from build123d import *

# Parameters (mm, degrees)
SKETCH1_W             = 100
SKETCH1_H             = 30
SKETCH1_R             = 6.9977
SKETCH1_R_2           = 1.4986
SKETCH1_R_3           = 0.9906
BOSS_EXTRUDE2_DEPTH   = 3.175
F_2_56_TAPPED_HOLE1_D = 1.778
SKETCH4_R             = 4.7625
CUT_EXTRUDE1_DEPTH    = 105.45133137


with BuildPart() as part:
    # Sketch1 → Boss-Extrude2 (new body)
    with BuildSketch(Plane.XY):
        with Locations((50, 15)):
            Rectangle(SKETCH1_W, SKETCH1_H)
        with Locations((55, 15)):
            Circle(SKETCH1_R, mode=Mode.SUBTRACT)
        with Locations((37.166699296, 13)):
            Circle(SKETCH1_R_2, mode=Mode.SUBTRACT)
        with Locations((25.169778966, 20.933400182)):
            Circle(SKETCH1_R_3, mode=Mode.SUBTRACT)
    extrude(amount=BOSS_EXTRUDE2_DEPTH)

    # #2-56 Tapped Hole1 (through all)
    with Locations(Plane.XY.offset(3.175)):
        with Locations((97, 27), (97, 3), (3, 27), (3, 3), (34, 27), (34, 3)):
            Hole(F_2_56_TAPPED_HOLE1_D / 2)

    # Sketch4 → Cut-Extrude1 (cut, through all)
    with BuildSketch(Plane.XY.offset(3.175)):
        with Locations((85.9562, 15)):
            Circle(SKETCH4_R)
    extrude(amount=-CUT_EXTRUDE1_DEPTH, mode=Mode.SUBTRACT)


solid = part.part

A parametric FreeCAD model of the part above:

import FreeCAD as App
import Part
import Sketcher
Q = App.Units.Quantity

doc = App.newDocument("Part")
body = doc.addObject("PartDesign::Body", "Body")

# Sketch on XY plane
sketch1 = body.newObject("Sketcher::SketchObject", "Sketch")
sketch1.AttachmentSupport = (doc.getObject("XY_Plane"), [""])
sketch1.MapMode = "FlatFace"
sketch1.addGeometry([
    Part.LineSegment(App.Vector(0, 30, 0), App.Vector(0, 0, 0)),  # 0
    Part.LineSegment(App.Vector(0, 0, 0), App.Vector(100, 0, 0)),  # 1
    Part.LineSegment(App.Vector(100, 0, 0), App.Vector(100, 30, 0)),  # 2
    Part.LineSegment(App.Vector(100, 30, 0), App.Vector(0, 30, 0)),  # 3
    Part.Circle(App.Vector(37.2, 13, 0), App.Vector(0, 0, 1), 1.5),  # 4
    Part.Circle(App.Vector(25.2, 20.9, 0), App.Vector(0, 0, 1), 1),  # 5
    Part.Circle(App.Vector(55, 15, 0), App.Vector(0, 0, 1), 7),  # 6
], False)
sketch1.addConstraint([
    Sketcher.Constraint("Coincident", 0, 2, 1, 1),
    Sketcher.Constraint("Coincident", 1, 2, 2, 1),
    Sketcher.Constraint("Coincident", 2, 2, 3, 1),
    Sketcher.Constraint("Coincident", 3, 2, 0, 1),
    Sketcher.Constraint("Vertical", 0),
    Sketcher.Constraint("Horizontal", 1),
    Sketcher.Constraint("Vertical", 2),
    Sketcher.Constraint("Horizontal", 3),
    Sketcher.Constraint("Coincident", 0, 2, -1, 1),
    Sketcher.Constraint("Diameter", 4, Q("0.118 in")),
    Sketcher.Constraint("Diameter", 5, Q("0.078 in")),
    Sketcher.Constraint("Diameter", 6, Q("0.551 in")),
    Sketcher.Constraint("DistanceX", 1, 1, 1, 2, Q("100 mm")),
    Sketcher.Constraint("DistanceY", 0, 2, 0, 1, Q("30 mm")),
    Sketcher.Constraint("DistanceX", -1, 1, 4, 3, Q("37.166699 mm")),
    Sketcher.Constraint("DistanceY", -1, 1, 4, 3, Q("13 mm")),
    Sketcher.Constraint("DistanceY", -1, 1, 5, 3, Q("20.9334 mm")),
    Sketcher.Constraint("DistanceX", -1, 1, 6, 3, Q("55 mm")),
    Sketcher.Constraint("DistanceY", -1, 1, 6, 3, Q("15 mm")),
    Sketcher.Constraint("DistanceX", -1, 1, 5, 3, Q("25.169779 mm")),
])
pad1 = body.newObject("PartDesign::Pad", "Pad")
pad1.Profile = sketch1
pad1.Length = Q("0.125 in")

# Sketch on XY plane
sketch2 = body.newObject("Sketcher::SketchObject", "Sketch001")
sketch2.AttachmentSupport = (doc.getObject("XY_Plane"), [""])
sketch2.MapMode = "FlatFace"
sketch2.AttachmentOffset = App.Placement(App.Vector(0, 0, 0.125 * 25.4), App.Rotation())
sketch2.addGeometry([
    Part.Circle(App.Vector(97, 27, 0), App.Vector(0, 0, 1), 0.9),  # 0
    Part.Circle(App.Vector(97, 3, 0), App.Vector(0, 0, 1), 0.9),  # 1
    Part.Circle(App.Vector(3, 27, 0), App.Vector(0, 0, 1), 0.9),  # 2
    Part.Circle(App.Vector(3, 3, 0), App.Vector(0, 0, 1), 0.9),  # 3
    Part.Circle(App.Vector(34, 27, 0), App.Vector(0, 0, 1), 0.9),  # 4
    Part.Circle(App.Vector(34, 3, 0), App.Vector(0, 0, 1), 0.9),  # 5
], False)
sketch2.addConstraint([
    Sketcher.Constraint("Equal", 0, 1),
    Sketcher.Constraint("Equal", 1, 2),
    Sketcher.Constraint("Equal", 2, 3),
    Sketcher.Constraint("Equal", 3, 4),
    Sketcher.Constraint("Equal", 4, 5),
    Sketcher.Constraint("Horizontal", 0, 3, 2, 3),
    Sketcher.Constraint("Horizontal", 1, 3, 3, 3),
    Sketcher.Constraint("Horizontal", 2, 3, 4, 3),
    Sketcher.Constraint("Horizontal", 3, 3, 5, 3),
    Sketcher.Constraint("Vertical", 0, 3, 1, 3),
    Sketcher.Constraint("Vertical", 2, 3, 3, 3),
    Sketcher.Constraint("Vertical", 4, 3, 5, 3),
    Sketcher.Constraint("Diameter", 0, Q("0.07 in")),
    Sketcher.Constraint("DistanceX", -1, 1, 0, 3, Q("97 mm")),
    Sketcher.Constraint("DistanceY", -1, 1, 0, 3, Q("27 mm")),
    Sketcher.Constraint("DistanceY", -1, 1, 1, 3, Q("3 mm")),
    Sketcher.Constraint("DistanceX", -1, 1, 2, 3, Q("3 mm")),
    Sketcher.Constraint("DistanceX", -1, 1, 4, 3, Q("34 mm")),
])
doc.recompute()
hole = body.newObject("PartDesign::Hole", "Hole")
hole.Profile = sketch2
hole.ThreadType = "None"
hole.Diameter = Q("0.07 in")
hole.DepthType = "ThroughAll"

# Sketch on XY plane
sketch3 = body.newObject("Sketcher::SketchObject", "Sketch002")
sketch3.AttachmentSupport = (doc.getObject("XY_Plane"), [""])
sketch3.MapMode = "FlatFace"
sketch3.AttachmentOffset = App.Placement(App.Vector(0, 0, 0.125 * 25.4), App.Rotation())
sketch3.addGeometry(Part.Circle(App.Vector(86, 15, 0), App.Vector(0, 0, 1), 4.8), False)
sketch3.addConstraint([
    Sketcher.Constraint("Diameter", 0, Q("0.375 in")),
    Sketcher.Constraint("DistanceX", -1, 1, 0, 3, Q("85.9562 mm")),
    Sketcher.Constraint("DistanceY", -1, 1, 0, 3, Q("15 mm")),
])
pocket1 = body.newObject("PartDesign::Pocket", "Pocket")
pocket1.Profile = sketch3
pocket1.Type = "ThroughAll"

doc.recompute()
